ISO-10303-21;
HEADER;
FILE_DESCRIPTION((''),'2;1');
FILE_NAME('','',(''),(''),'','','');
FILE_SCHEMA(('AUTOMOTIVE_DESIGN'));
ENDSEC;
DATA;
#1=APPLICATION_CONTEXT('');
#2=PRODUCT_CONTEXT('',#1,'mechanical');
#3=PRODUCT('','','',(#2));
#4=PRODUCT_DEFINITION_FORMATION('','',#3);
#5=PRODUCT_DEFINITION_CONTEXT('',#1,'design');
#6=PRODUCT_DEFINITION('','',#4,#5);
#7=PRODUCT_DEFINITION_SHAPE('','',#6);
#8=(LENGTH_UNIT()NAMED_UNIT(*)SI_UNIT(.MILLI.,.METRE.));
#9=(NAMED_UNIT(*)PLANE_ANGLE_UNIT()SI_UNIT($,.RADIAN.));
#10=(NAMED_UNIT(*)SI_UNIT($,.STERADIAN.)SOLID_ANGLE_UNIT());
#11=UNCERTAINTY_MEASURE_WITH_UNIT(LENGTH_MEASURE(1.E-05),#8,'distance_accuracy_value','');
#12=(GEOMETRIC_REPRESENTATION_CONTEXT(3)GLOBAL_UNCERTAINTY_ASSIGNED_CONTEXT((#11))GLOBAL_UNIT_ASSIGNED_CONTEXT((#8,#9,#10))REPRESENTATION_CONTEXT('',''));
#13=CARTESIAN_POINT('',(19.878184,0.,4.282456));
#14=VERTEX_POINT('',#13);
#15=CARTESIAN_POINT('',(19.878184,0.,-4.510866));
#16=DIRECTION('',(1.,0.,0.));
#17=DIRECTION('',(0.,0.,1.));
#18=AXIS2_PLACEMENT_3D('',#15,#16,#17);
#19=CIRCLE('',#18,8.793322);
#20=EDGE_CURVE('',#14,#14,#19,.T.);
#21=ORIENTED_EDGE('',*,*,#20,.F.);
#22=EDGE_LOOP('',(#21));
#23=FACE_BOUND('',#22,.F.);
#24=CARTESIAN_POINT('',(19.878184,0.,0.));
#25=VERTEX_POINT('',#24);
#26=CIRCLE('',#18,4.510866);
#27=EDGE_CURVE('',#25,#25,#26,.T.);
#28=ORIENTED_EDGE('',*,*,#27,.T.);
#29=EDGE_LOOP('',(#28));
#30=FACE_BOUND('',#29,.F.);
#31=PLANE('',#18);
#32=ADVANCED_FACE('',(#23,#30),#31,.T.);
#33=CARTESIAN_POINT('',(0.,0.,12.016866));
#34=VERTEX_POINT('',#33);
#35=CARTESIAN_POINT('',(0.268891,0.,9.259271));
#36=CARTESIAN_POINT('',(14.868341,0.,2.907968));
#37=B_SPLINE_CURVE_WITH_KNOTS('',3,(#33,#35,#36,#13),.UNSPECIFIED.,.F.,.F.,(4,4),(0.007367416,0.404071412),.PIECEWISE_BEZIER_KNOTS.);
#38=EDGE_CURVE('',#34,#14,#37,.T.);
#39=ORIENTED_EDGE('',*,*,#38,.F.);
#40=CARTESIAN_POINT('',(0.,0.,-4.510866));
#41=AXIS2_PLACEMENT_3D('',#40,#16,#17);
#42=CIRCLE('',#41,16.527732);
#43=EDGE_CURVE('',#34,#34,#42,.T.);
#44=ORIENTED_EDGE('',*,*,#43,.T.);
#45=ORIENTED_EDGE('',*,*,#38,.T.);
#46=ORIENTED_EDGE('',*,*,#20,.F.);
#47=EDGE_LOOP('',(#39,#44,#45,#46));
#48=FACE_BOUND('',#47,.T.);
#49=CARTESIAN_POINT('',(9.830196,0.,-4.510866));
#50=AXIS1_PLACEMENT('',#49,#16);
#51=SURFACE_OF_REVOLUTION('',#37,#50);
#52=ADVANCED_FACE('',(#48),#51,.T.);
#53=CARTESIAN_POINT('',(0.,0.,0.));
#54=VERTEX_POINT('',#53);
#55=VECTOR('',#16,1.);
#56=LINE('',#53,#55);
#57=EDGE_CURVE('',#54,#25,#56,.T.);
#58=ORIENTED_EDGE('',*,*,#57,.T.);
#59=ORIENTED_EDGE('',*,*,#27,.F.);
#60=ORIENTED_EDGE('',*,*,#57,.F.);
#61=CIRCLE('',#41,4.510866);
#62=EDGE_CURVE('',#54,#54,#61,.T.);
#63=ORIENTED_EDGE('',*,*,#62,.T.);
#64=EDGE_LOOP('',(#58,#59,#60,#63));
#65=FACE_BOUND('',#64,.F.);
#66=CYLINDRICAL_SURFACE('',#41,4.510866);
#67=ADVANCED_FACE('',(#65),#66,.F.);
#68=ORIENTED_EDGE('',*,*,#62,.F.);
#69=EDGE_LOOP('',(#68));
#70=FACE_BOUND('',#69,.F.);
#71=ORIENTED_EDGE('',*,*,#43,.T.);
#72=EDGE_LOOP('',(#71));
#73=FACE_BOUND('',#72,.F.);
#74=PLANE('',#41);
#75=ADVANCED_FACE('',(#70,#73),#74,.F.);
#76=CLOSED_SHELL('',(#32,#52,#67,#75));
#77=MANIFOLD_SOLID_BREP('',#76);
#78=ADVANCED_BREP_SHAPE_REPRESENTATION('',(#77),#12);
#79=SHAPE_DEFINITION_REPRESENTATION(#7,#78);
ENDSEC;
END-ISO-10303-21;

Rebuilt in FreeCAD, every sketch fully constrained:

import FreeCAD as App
import Part
import Sketcher
Q = App.Units.Quantity

doc = App.newDocument("Part")
params = doc.addObject("Spreadsheet::Sheet", "Params")
for row, (alias, value) in enumerate([
    ("revolution_angle", "360 deg"),
], start=1):
    params.set(f"A{row}", alias)
    params.set(f"B{row}", "=" + value)
    params.setAlias(f"B{row}", alias)

body = doc.addObject("PartDesign::Body", "Body")

# Sketch on XZ plane
sketch1 = body.newObject("Sketcher::SketchObject", "Sketch")
sketch1.AttachmentSupport = (doc.getObject("XZ_Plane"), [""])
sketch1.MapMode = "FlatFace"
sketch1.addGeometry(Part.LineSegment(App.Vector(0, 12.016866, 0), App.Vector(0, 0, 0)), False)
sketch1.addGeometry(Part.LineSegment(App.Vector(0, 0, 0), App.Vector(19.878184, 0, 0)), False)
sketch1.addGeometry(Part.LineSegment(App.Vector(19.878184, 0, 0), App.Vector(19.878184, 4.282456, 0)), False)
sketch1.addGeometry(Part.BSplineCurve([App.Vector(0, 12.016866, 0), App.Vector(0.268891, 9.259271, 0), App.Vector(14.868341, 2.907968, 0), App.Vector(19.878184, 4.282456, 0)], [4, 4], [0.007367416, 0.404071412], False, 3, [1, 1, 1, 1], False), False)
sketch1.addGeometry(Part.LineSegment(App.Vector(0, -4.510866, 0), App.Vector(19.878184, -4.510866, 0)), True)  # axis
sketch1.addConstraint(Sketcher.Constraint("Block", 3))
sketch1.addConstraint(Sketcher.Constraint("Coincident", 0, 2, 1, 1))
sketch1.addConstraint(Sketcher.Constraint("Coincident", 1, 2, 2, 1))
sketch1.addConstraint(Sketcher.Constraint("Coincident", 2, 2, 3, 2))
sketch1.addConstraint(Sketcher.Constraint("Coincident", 3, 1, 0, 1))
sketch1.addConstraint(Sketcher.Constraint("Vertical", 0))
sketch1.addConstraint(Sketcher.Constraint("Horizontal", 1))
sketch1.addConstraint(Sketcher.Constraint("Vertical", 2))
sketch1.addConstraint(Sketcher.Constraint("Horizontal", 4))
sketch1.addConstraint(Sketcher.Constraint("PointOnObject", 1, 2, -1))
sketch1.addConstraint(Sketcher.Constraint("PointOnObject", 4, 1, -2))
sketch1.addConstraint(Sketcher.Constraint("Vertical", 2, 2, 4, 2))
sketch1.addConstraint(Sketcher.Constraint("DistanceY", 4, 1, -1, 1, Q("4.510866 mm")))
revolution = body.newObject("PartDesign::Revolution", "Revolution")
revolution.Profile = sketch1
revolution.ReferenceAxis = (sketch1, ["Axis0"])
revolution.setExpression("Angle", "Params.revolution_angle")

doc.recompute()
